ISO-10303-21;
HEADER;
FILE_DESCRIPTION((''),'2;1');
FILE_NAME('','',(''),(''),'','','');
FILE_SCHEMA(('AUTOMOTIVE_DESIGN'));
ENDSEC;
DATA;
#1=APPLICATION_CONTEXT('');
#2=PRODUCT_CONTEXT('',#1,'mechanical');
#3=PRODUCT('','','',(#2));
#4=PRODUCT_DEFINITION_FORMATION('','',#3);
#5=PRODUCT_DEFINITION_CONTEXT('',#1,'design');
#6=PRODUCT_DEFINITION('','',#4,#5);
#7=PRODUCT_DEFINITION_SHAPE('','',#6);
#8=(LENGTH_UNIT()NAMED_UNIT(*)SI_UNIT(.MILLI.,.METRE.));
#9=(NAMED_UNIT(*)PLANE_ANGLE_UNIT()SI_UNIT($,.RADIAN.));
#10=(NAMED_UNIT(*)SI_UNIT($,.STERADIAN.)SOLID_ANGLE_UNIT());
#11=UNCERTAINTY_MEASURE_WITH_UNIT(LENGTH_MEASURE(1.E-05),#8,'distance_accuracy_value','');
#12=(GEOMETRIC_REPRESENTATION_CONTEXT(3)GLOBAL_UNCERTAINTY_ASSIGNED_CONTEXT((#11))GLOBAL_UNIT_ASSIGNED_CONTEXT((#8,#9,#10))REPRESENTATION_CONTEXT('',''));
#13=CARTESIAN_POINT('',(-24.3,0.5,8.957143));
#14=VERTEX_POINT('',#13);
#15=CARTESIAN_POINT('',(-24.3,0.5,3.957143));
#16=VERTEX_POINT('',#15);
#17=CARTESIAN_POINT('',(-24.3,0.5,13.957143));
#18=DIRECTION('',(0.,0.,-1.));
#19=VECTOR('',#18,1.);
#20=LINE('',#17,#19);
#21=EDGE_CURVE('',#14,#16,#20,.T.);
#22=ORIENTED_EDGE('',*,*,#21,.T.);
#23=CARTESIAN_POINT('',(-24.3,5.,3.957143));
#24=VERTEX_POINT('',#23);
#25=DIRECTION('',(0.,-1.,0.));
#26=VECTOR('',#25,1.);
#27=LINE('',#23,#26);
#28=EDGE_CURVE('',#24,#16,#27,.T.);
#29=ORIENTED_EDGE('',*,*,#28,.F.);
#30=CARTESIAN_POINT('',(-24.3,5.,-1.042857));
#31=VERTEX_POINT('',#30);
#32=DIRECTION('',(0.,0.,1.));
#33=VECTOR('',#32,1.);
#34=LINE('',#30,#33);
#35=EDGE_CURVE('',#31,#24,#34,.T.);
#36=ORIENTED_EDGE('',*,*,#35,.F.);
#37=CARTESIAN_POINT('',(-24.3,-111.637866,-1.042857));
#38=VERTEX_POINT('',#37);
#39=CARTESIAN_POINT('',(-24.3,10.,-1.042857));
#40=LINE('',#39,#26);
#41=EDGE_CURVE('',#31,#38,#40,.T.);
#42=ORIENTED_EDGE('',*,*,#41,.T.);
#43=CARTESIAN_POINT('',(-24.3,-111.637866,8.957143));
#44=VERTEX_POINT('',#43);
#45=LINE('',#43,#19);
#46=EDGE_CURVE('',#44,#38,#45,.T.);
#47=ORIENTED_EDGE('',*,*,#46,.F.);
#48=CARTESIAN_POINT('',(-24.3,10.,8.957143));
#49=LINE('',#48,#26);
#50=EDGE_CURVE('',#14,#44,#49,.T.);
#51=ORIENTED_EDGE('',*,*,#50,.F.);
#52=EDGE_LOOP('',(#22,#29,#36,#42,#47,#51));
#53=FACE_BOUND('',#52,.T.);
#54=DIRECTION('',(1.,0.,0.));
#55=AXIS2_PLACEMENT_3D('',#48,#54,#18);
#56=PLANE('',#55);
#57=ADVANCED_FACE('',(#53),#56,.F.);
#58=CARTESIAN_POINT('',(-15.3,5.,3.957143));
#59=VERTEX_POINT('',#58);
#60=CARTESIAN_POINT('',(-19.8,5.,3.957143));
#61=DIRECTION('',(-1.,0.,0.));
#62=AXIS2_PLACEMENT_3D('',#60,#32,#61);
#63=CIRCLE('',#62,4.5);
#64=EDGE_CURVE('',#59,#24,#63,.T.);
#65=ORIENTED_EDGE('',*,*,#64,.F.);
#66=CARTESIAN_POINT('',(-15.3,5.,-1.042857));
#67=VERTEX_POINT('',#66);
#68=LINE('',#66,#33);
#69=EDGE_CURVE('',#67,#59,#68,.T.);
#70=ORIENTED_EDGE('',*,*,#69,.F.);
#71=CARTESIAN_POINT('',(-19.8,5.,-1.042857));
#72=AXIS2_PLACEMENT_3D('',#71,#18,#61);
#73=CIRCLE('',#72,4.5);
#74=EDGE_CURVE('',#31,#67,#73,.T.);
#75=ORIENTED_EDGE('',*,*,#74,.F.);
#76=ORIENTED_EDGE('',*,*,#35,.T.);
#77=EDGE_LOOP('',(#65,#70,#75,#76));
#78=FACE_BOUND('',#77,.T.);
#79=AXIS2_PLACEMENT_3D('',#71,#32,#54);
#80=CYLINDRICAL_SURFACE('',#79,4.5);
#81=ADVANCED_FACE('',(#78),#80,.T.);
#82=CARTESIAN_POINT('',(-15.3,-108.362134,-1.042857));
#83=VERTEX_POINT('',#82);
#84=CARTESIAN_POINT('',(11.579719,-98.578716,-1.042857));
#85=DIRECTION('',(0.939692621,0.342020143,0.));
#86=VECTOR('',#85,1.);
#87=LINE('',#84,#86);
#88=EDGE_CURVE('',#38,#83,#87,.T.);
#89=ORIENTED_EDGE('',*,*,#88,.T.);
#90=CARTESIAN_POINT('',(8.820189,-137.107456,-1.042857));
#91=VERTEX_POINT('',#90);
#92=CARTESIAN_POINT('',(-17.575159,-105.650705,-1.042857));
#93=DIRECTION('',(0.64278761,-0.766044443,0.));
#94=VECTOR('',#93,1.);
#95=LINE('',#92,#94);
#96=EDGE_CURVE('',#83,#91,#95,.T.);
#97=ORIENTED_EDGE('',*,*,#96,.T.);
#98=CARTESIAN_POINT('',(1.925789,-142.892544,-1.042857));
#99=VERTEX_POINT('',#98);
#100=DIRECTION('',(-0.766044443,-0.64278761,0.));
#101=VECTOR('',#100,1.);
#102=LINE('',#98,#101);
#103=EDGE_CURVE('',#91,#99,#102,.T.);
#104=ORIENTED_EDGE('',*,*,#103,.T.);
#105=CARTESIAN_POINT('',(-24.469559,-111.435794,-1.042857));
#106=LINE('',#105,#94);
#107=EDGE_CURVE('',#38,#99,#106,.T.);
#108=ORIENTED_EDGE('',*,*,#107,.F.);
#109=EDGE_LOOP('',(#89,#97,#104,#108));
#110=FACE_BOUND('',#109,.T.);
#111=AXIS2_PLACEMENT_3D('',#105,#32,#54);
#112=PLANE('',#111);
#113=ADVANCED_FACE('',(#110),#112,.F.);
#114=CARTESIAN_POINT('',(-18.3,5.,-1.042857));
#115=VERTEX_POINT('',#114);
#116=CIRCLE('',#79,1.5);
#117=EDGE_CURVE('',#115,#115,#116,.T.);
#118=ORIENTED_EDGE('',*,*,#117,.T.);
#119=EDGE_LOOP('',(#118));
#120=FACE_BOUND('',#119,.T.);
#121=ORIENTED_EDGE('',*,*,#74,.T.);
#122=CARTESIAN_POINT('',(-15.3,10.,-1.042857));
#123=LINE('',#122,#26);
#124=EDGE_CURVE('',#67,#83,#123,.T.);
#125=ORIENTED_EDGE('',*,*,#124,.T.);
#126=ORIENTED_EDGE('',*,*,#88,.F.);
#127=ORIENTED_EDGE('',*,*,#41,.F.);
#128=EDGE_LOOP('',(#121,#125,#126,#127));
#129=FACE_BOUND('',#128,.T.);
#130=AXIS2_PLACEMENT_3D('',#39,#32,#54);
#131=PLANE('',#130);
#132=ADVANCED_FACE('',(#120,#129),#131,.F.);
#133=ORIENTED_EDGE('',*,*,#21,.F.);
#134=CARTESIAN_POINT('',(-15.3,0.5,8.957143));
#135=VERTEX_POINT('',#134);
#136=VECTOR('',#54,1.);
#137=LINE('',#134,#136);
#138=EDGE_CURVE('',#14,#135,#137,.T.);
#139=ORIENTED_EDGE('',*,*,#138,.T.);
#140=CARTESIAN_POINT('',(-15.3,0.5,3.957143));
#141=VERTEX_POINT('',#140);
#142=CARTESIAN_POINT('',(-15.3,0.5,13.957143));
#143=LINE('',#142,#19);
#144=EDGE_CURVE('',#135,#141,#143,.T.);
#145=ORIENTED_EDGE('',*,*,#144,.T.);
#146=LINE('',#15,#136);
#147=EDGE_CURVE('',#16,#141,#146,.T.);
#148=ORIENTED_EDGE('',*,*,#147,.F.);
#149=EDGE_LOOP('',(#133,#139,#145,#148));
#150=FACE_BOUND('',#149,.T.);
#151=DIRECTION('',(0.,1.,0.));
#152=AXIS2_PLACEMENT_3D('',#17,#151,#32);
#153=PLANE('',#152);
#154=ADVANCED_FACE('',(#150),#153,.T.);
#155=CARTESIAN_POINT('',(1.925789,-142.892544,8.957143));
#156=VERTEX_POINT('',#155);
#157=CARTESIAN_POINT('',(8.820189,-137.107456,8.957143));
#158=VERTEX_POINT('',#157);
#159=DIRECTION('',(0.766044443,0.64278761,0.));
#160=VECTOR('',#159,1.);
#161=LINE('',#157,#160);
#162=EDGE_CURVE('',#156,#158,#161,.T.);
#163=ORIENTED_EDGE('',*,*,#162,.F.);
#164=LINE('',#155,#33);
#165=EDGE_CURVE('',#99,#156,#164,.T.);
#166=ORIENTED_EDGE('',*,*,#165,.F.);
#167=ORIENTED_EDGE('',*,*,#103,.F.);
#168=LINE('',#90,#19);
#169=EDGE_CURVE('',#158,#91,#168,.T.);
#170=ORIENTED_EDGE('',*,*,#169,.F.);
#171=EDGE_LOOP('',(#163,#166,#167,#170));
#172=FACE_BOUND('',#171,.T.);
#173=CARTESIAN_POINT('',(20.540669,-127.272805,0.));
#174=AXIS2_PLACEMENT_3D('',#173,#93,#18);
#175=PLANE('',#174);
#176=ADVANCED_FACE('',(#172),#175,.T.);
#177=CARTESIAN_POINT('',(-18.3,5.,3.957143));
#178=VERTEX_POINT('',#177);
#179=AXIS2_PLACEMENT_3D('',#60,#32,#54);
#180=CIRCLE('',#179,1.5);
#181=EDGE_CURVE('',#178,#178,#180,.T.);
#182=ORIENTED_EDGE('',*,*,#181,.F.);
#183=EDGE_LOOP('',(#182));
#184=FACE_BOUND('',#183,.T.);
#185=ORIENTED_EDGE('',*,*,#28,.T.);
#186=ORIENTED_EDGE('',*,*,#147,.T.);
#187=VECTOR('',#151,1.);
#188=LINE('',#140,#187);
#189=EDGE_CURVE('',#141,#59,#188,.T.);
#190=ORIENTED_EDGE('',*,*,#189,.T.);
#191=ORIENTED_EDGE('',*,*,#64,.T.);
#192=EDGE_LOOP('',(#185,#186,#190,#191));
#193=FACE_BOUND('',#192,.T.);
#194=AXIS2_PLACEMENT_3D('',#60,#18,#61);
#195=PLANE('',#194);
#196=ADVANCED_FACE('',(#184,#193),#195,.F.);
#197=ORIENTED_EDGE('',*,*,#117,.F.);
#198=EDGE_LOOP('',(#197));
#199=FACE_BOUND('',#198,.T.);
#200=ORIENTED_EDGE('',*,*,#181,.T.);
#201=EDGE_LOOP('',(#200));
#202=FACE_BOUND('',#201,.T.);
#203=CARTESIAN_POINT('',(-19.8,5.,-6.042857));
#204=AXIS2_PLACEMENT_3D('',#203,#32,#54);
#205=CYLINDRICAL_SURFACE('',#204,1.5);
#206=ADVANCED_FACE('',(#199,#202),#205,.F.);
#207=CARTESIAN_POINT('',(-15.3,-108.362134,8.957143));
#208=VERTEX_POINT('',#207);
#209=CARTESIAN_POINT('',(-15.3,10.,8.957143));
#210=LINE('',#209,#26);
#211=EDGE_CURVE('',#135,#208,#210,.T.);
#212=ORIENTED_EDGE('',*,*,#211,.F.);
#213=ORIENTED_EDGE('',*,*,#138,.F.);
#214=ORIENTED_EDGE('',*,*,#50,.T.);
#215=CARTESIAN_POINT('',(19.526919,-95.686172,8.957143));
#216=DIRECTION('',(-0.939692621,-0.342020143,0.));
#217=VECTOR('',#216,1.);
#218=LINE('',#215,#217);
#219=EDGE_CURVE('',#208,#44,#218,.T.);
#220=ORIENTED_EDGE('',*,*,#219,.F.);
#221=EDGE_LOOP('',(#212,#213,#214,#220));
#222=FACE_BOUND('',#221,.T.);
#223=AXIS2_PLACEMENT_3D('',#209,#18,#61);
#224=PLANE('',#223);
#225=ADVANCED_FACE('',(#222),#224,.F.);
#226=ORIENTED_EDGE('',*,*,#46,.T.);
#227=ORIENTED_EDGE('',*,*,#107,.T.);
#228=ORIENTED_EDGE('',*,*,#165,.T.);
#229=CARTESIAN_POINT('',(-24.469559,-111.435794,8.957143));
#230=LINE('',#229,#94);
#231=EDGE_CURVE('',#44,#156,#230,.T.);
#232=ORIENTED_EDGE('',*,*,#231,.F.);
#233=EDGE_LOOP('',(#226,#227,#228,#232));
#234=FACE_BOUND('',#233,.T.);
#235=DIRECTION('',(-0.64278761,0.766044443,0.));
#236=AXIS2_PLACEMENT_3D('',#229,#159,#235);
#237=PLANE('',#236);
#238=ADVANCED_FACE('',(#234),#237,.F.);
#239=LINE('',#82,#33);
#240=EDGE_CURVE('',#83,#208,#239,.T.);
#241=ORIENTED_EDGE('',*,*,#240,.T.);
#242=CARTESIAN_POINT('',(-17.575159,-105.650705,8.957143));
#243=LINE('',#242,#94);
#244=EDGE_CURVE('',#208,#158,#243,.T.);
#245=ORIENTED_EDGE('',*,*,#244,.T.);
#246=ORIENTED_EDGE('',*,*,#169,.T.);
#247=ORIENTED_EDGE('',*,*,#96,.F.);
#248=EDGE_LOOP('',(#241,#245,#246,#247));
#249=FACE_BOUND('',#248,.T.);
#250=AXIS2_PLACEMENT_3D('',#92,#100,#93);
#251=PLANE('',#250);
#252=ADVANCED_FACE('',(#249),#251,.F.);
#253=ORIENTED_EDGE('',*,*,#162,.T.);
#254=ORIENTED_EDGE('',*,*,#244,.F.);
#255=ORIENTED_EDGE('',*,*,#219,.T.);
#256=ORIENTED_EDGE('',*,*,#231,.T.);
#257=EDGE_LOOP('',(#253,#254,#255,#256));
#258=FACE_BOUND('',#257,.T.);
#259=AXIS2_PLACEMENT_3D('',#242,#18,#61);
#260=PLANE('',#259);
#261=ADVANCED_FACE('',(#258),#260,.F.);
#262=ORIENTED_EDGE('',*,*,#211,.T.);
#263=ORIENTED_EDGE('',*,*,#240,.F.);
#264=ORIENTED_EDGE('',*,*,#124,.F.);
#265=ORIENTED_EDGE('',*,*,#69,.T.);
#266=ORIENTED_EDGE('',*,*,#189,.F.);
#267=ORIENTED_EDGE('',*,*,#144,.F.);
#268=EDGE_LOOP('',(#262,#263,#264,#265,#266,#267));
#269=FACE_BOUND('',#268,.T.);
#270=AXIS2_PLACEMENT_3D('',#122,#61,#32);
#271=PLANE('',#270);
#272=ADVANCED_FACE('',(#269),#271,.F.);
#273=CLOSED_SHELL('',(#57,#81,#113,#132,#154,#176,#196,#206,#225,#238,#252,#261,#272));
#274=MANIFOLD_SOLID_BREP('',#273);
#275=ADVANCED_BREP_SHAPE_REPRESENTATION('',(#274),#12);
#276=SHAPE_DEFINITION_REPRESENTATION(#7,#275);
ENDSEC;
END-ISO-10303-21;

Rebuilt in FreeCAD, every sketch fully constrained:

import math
import FreeCAD as App
import Part
import Sketcher

V = App.Vector
Q = App.Units.Quantity

doc = App.newDocument("Part")
body = doc.addObject("PartDesign::Body", "Body")

sketch1 = body.newObject("Sketcher::SketchObject", "Sketch")
sketch1.AttachmentSupport = (doc.getObject("XZ_Plane"), [""])
sketch1.MapMode = "FlatFace"
sketch1.addGeometry([
    Part.LineSegment(V(-24, -1, 0), V(-24, 9, 0)),
    Part.LineSegment(V(-24, 9, 0), V(-15, 9, 0)),
    Part.LineSegment(V(-15, 9, 0), V(-15, -1, 0)),
    Part.LineSegment(V(-15, -1, 0), V(-24, -1, 0)),
], False)
sketch1.addConstraint([
    Sketcher.Constraint("Coincident", 0, 2, 1, 1),
    Sketcher.Constraint("Coincident", 1, 2, 2, 1),
    Sketcher.Constraint("Coincident", 2, 2, 3, 1),
    Sketcher.Constraint("Coincident", 3, 2, 0, 1),
    Sketcher.Constraint("Vertical", 0),
    Sketcher.Constraint("Horizontal", 1),
    Sketcher.Constraint("Vertical", 2),
    Sketcher.Constraint("Horizontal", 3),
    Sketcher.Constraint("DistanceX", 1, 1, 1, 2, Q("9 mm")),
    Sketcher.Constraint("DistanceY", 0, 1, 0, 2, Q("10 mm")),
    Sketcher.Constraint("DistanceX", 0, 2, -1, 1, Q("24.3 mm")),
    Sketcher.Constraint("DistanceY", -1, 1, 0, 2, Q("8.957143 mm")),
])
pad1 = body.newObject("PartDesign::Pad", "Pad")
pad1.Profile = sketch1
pad1.Length = 10
pad1.Reversed = True

sketch2 = body.newObject("Sketcher::SketchObject", "Sketch001")
sketch2.AttachmentSupport = (doc.getObject("XY_Plane"), [""])
sketch2.MapMode = "FlatFace"
sketch2.AttachmentOffset = App.Placement(V(0, 0, 8.957143), App.Rotation())
sketch2.addGeometry([
    Part.LineSegment(V(-24.3, 10, 0), V(-24.3, 5, 0)),
    Part.ArcOfCircle(Part.Circle(V(-19.8, 5, 0), V(0, 0, 1), 4.5), math.radians(0), math.radians(180)),
    Part.LineSegment(V(-15.3, 5, 0), V(-15.3, 10, 0)),
    Part.LineSegment(V(-15.3, 10, 0), V(-24.3, 10, 0)),
], False)
sketch2.addConstraint([
    Sketcher.Constraint("Tangent", 0, 2, 1, 2),
    Sketcher.Constraint("Tangent", 1, 1, 2, 1),
    Sketcher.Constraint("Coincident", 2, 2, 3, 1),
    Sketcher.Constraint("Coincident", 3, 2, 0, 1),
    Sketcher.Constraint("Vertical", 0),
    Sketcher.Constraint("Vertical", 2),
    Sketcher.Constraint("Horizontal", 3),
    Sketcher.Constraint("Radius", 1, Q("4.5 mm")),
    Sketcher.Constraint("DistanceY", 0, 2, 0, 1, Q("5 mm")),
    Sketcher.Constraint("DistanceY", -1, 1, 1, 3, Q("5 mm")),
    Sketcher.Constraint("DistanceX", 1, 3, -1, 1, Q("19.8 mm")),
])
pocket1 = body.newObject("PartDesign::Pocket", "Pocket")
pocket1.Profile = sketch2
pocket1.Length = 10

sketch3 = body.newObject("Sketcher::SketchObject", "Sketch002")
sketch3.AttachmentSupport = (doc.getObject("XZ_Plane"), [""])
sketch3.MapMode = "FlatFace"
sketch3.addGeometry([
    Part.LineSegment(V(-24, -1, 0), V(-24, 9, 0)),
    Part.LineSegment(V(-24, 9, 0), V(-15, 9, 0)),
    Part.LineSegment(V(-15, 9, 0), V(-15, -1, 0)),
    Part.LineSegment(V(-15, -1, 0), V(-24, -1, 0)),
], False)
sketch3.addConstraint([
    Sketcher.Constraint("Coincident", 0, 2, 1, 1),
    Sketcher.Constraint("Coincident", 1, 2, 2, 1),
    Sketcher.Constraint("Coincident", 2, 2, 3, 1),
    Sketcher.Constraint("Coincident", 3, 2, 0, 1),
    Sketcher.Constraint("Vertical", 0),
    Sketcher.Constraint("Horizontal", 1),
    Sketcher.Constraint("Vertical", 2),
    Sketcher.Constraint("Horizontal", 3),
    Sketcher.Constraint("DistanceX", 1, 1, 1, 2, Q("9 mm")),
    Sketcher.Constraint("DistanceY", 0, 1, 0, 2, Q("10 mm")),
    Sketcher.Constraint("DistanceX", 0, 2, -1, 1, Q("24.3 mm")),
    Sketcher.Constraint("DistanceY", -1, 1, 0, 2, Q("8.957143 mm")),
])

sketch4 = body.newObject("Sketcher::SketchObject", "Sketch003")
sketch4.AttachmentSupport = (doc.getObject("XY_Plane"), [""])
sketch4.MapMode = "FlatFace"
sketch4.AttachmentOffset = App.Placement(V(0, 0, 3.957143), App.Rotation())
sketch4.addGeometry([
    Part.LineSegment(V(-20, 0, 0), V(-20, -110, 0)),
    Part.LineSegment(V(-20, -110, 0), V(5, -140, 0)),
], False)
sketch4.addConstraint([
    Sketcher.Constraint("Coincident", 0, 2, 1, 1),
    Sketcher.Constraint("Vertical", 0),
    Sketcher.Constraint("PointOnObject", 0, 1, -1),
    Sketcher.Constraint("DistanceY", 0, 2, 0, 1, Q("110 mm")),
    Sketcher.Constraint("Angle", 1, Q("-50 deg")),
    Sketcher.Constraint("DistanceY", 1, 2, -1, 1, Q("140 mm")),
    Sketcher.Constraint("DistanceX", 0, 1, -1, 1, Q("19.8 mm")),
])
doc.recompute()

additivepipe = body.newObject("PartDesign::AdditivePipe", "AdditivePipe")
additivepipe.Profile = sketch3
additivepipe.Spine = (sketch4, ["Edge1", "Edge2"])
additivepipe.Transition = "Right corner"

sketch5 = body.newObject("Sketcher::SketchObject", "Sketch004")
sketch5.AttachmentSupport = (doc.getObject("XY_Plane"), [""])
sketch5.MapMode = "FlatFace"
sketch5.AttachmentOffset = App.Placement(V(0, 0, 13.957143), App.Rotation())
sketch5.addGeometry([
    Part.LineSegment(V(-24.3, 5, 0), V(-24.3, 0.5, 0)),
    Part.LineSegment(V(-24.3, 0.5, 0), V(-15.3, 0.5, 0)),
    Part.LineSegment(V(-15.3, 0.5, 0), V(-15.3, 5, 0)),
    Part.ArcOfCircle(Part.Circle(V(-19.8, 5, 0), V(0, 0, 1), 4.5), math.radians(0), math.radians(180)),
], False)
sketch5.addConstraint([
    Sketcher.Constraint("Coincident", 0, 2, 1, 1),
    Sketcher.Constraint("Coincident", 1, 2, 2, 1),
    Sketcher.Constraint("Tangent", 2, 2, 3, 1),
    Sketcher.Constraint("Tangent", 3, 2, 0, 1),
    Sketcher.Constraint("Vertical", 0),
    Sketcher.Constraint("Horizontal", 1),
    Sketcher.Constraint("Vertical", 2),
    Sketcher.Constraint("Radius", 3, Q("4.5 mm")),
    Sketcher.Constraint("DistanceY", 0, 2, 0, 1, Q("4.5 mm")),
    Sketcher.Constraint("DistanceY", -1, 1, 3, 3, Q("5 mm")),
    Sketcher.Constraint("DistanceX", 3, 3, -1, 1, Q("19.8 mm")),
])
pocket2 = body.newObject("PartDesign::Pocket", "Pocket001")
pocket2.Profile = sketch5
pocket2.Length = 10

sketch6 = body.newObject("Sketcher::SketchObject", "Sketch005")
sketch6.AttachmentSupport = (doc.getObject("XY_Plane"), [""])
sketch6.MapMode = "FlatFace"
sketch6.AttachmentOffset = App.Placement(V(0, 0, 3.957143), App.Rotation())
sketch6.addGeometry(Part.Circle(V(-19.8, 5, 0), V(0, 0, 1), 1.5), False)
sketch6.addConstraint([
    Sketcher.Constraint("Diameter", 0, Q("3 mm")),
    Sketcher.Constraint("DistanceY", -1, 1, 0, 3, Q("5 mm")),
    Sketcher.Constraint("DistanceX", 0, 3, -1, 1, Q("19.8 mm")),
])
pocket3 = body.newObject("PartDesign::Pocket", "Pocket002")
pocket3.Profile = sketch6
pocket3.Length = 10

doc.recompute()
